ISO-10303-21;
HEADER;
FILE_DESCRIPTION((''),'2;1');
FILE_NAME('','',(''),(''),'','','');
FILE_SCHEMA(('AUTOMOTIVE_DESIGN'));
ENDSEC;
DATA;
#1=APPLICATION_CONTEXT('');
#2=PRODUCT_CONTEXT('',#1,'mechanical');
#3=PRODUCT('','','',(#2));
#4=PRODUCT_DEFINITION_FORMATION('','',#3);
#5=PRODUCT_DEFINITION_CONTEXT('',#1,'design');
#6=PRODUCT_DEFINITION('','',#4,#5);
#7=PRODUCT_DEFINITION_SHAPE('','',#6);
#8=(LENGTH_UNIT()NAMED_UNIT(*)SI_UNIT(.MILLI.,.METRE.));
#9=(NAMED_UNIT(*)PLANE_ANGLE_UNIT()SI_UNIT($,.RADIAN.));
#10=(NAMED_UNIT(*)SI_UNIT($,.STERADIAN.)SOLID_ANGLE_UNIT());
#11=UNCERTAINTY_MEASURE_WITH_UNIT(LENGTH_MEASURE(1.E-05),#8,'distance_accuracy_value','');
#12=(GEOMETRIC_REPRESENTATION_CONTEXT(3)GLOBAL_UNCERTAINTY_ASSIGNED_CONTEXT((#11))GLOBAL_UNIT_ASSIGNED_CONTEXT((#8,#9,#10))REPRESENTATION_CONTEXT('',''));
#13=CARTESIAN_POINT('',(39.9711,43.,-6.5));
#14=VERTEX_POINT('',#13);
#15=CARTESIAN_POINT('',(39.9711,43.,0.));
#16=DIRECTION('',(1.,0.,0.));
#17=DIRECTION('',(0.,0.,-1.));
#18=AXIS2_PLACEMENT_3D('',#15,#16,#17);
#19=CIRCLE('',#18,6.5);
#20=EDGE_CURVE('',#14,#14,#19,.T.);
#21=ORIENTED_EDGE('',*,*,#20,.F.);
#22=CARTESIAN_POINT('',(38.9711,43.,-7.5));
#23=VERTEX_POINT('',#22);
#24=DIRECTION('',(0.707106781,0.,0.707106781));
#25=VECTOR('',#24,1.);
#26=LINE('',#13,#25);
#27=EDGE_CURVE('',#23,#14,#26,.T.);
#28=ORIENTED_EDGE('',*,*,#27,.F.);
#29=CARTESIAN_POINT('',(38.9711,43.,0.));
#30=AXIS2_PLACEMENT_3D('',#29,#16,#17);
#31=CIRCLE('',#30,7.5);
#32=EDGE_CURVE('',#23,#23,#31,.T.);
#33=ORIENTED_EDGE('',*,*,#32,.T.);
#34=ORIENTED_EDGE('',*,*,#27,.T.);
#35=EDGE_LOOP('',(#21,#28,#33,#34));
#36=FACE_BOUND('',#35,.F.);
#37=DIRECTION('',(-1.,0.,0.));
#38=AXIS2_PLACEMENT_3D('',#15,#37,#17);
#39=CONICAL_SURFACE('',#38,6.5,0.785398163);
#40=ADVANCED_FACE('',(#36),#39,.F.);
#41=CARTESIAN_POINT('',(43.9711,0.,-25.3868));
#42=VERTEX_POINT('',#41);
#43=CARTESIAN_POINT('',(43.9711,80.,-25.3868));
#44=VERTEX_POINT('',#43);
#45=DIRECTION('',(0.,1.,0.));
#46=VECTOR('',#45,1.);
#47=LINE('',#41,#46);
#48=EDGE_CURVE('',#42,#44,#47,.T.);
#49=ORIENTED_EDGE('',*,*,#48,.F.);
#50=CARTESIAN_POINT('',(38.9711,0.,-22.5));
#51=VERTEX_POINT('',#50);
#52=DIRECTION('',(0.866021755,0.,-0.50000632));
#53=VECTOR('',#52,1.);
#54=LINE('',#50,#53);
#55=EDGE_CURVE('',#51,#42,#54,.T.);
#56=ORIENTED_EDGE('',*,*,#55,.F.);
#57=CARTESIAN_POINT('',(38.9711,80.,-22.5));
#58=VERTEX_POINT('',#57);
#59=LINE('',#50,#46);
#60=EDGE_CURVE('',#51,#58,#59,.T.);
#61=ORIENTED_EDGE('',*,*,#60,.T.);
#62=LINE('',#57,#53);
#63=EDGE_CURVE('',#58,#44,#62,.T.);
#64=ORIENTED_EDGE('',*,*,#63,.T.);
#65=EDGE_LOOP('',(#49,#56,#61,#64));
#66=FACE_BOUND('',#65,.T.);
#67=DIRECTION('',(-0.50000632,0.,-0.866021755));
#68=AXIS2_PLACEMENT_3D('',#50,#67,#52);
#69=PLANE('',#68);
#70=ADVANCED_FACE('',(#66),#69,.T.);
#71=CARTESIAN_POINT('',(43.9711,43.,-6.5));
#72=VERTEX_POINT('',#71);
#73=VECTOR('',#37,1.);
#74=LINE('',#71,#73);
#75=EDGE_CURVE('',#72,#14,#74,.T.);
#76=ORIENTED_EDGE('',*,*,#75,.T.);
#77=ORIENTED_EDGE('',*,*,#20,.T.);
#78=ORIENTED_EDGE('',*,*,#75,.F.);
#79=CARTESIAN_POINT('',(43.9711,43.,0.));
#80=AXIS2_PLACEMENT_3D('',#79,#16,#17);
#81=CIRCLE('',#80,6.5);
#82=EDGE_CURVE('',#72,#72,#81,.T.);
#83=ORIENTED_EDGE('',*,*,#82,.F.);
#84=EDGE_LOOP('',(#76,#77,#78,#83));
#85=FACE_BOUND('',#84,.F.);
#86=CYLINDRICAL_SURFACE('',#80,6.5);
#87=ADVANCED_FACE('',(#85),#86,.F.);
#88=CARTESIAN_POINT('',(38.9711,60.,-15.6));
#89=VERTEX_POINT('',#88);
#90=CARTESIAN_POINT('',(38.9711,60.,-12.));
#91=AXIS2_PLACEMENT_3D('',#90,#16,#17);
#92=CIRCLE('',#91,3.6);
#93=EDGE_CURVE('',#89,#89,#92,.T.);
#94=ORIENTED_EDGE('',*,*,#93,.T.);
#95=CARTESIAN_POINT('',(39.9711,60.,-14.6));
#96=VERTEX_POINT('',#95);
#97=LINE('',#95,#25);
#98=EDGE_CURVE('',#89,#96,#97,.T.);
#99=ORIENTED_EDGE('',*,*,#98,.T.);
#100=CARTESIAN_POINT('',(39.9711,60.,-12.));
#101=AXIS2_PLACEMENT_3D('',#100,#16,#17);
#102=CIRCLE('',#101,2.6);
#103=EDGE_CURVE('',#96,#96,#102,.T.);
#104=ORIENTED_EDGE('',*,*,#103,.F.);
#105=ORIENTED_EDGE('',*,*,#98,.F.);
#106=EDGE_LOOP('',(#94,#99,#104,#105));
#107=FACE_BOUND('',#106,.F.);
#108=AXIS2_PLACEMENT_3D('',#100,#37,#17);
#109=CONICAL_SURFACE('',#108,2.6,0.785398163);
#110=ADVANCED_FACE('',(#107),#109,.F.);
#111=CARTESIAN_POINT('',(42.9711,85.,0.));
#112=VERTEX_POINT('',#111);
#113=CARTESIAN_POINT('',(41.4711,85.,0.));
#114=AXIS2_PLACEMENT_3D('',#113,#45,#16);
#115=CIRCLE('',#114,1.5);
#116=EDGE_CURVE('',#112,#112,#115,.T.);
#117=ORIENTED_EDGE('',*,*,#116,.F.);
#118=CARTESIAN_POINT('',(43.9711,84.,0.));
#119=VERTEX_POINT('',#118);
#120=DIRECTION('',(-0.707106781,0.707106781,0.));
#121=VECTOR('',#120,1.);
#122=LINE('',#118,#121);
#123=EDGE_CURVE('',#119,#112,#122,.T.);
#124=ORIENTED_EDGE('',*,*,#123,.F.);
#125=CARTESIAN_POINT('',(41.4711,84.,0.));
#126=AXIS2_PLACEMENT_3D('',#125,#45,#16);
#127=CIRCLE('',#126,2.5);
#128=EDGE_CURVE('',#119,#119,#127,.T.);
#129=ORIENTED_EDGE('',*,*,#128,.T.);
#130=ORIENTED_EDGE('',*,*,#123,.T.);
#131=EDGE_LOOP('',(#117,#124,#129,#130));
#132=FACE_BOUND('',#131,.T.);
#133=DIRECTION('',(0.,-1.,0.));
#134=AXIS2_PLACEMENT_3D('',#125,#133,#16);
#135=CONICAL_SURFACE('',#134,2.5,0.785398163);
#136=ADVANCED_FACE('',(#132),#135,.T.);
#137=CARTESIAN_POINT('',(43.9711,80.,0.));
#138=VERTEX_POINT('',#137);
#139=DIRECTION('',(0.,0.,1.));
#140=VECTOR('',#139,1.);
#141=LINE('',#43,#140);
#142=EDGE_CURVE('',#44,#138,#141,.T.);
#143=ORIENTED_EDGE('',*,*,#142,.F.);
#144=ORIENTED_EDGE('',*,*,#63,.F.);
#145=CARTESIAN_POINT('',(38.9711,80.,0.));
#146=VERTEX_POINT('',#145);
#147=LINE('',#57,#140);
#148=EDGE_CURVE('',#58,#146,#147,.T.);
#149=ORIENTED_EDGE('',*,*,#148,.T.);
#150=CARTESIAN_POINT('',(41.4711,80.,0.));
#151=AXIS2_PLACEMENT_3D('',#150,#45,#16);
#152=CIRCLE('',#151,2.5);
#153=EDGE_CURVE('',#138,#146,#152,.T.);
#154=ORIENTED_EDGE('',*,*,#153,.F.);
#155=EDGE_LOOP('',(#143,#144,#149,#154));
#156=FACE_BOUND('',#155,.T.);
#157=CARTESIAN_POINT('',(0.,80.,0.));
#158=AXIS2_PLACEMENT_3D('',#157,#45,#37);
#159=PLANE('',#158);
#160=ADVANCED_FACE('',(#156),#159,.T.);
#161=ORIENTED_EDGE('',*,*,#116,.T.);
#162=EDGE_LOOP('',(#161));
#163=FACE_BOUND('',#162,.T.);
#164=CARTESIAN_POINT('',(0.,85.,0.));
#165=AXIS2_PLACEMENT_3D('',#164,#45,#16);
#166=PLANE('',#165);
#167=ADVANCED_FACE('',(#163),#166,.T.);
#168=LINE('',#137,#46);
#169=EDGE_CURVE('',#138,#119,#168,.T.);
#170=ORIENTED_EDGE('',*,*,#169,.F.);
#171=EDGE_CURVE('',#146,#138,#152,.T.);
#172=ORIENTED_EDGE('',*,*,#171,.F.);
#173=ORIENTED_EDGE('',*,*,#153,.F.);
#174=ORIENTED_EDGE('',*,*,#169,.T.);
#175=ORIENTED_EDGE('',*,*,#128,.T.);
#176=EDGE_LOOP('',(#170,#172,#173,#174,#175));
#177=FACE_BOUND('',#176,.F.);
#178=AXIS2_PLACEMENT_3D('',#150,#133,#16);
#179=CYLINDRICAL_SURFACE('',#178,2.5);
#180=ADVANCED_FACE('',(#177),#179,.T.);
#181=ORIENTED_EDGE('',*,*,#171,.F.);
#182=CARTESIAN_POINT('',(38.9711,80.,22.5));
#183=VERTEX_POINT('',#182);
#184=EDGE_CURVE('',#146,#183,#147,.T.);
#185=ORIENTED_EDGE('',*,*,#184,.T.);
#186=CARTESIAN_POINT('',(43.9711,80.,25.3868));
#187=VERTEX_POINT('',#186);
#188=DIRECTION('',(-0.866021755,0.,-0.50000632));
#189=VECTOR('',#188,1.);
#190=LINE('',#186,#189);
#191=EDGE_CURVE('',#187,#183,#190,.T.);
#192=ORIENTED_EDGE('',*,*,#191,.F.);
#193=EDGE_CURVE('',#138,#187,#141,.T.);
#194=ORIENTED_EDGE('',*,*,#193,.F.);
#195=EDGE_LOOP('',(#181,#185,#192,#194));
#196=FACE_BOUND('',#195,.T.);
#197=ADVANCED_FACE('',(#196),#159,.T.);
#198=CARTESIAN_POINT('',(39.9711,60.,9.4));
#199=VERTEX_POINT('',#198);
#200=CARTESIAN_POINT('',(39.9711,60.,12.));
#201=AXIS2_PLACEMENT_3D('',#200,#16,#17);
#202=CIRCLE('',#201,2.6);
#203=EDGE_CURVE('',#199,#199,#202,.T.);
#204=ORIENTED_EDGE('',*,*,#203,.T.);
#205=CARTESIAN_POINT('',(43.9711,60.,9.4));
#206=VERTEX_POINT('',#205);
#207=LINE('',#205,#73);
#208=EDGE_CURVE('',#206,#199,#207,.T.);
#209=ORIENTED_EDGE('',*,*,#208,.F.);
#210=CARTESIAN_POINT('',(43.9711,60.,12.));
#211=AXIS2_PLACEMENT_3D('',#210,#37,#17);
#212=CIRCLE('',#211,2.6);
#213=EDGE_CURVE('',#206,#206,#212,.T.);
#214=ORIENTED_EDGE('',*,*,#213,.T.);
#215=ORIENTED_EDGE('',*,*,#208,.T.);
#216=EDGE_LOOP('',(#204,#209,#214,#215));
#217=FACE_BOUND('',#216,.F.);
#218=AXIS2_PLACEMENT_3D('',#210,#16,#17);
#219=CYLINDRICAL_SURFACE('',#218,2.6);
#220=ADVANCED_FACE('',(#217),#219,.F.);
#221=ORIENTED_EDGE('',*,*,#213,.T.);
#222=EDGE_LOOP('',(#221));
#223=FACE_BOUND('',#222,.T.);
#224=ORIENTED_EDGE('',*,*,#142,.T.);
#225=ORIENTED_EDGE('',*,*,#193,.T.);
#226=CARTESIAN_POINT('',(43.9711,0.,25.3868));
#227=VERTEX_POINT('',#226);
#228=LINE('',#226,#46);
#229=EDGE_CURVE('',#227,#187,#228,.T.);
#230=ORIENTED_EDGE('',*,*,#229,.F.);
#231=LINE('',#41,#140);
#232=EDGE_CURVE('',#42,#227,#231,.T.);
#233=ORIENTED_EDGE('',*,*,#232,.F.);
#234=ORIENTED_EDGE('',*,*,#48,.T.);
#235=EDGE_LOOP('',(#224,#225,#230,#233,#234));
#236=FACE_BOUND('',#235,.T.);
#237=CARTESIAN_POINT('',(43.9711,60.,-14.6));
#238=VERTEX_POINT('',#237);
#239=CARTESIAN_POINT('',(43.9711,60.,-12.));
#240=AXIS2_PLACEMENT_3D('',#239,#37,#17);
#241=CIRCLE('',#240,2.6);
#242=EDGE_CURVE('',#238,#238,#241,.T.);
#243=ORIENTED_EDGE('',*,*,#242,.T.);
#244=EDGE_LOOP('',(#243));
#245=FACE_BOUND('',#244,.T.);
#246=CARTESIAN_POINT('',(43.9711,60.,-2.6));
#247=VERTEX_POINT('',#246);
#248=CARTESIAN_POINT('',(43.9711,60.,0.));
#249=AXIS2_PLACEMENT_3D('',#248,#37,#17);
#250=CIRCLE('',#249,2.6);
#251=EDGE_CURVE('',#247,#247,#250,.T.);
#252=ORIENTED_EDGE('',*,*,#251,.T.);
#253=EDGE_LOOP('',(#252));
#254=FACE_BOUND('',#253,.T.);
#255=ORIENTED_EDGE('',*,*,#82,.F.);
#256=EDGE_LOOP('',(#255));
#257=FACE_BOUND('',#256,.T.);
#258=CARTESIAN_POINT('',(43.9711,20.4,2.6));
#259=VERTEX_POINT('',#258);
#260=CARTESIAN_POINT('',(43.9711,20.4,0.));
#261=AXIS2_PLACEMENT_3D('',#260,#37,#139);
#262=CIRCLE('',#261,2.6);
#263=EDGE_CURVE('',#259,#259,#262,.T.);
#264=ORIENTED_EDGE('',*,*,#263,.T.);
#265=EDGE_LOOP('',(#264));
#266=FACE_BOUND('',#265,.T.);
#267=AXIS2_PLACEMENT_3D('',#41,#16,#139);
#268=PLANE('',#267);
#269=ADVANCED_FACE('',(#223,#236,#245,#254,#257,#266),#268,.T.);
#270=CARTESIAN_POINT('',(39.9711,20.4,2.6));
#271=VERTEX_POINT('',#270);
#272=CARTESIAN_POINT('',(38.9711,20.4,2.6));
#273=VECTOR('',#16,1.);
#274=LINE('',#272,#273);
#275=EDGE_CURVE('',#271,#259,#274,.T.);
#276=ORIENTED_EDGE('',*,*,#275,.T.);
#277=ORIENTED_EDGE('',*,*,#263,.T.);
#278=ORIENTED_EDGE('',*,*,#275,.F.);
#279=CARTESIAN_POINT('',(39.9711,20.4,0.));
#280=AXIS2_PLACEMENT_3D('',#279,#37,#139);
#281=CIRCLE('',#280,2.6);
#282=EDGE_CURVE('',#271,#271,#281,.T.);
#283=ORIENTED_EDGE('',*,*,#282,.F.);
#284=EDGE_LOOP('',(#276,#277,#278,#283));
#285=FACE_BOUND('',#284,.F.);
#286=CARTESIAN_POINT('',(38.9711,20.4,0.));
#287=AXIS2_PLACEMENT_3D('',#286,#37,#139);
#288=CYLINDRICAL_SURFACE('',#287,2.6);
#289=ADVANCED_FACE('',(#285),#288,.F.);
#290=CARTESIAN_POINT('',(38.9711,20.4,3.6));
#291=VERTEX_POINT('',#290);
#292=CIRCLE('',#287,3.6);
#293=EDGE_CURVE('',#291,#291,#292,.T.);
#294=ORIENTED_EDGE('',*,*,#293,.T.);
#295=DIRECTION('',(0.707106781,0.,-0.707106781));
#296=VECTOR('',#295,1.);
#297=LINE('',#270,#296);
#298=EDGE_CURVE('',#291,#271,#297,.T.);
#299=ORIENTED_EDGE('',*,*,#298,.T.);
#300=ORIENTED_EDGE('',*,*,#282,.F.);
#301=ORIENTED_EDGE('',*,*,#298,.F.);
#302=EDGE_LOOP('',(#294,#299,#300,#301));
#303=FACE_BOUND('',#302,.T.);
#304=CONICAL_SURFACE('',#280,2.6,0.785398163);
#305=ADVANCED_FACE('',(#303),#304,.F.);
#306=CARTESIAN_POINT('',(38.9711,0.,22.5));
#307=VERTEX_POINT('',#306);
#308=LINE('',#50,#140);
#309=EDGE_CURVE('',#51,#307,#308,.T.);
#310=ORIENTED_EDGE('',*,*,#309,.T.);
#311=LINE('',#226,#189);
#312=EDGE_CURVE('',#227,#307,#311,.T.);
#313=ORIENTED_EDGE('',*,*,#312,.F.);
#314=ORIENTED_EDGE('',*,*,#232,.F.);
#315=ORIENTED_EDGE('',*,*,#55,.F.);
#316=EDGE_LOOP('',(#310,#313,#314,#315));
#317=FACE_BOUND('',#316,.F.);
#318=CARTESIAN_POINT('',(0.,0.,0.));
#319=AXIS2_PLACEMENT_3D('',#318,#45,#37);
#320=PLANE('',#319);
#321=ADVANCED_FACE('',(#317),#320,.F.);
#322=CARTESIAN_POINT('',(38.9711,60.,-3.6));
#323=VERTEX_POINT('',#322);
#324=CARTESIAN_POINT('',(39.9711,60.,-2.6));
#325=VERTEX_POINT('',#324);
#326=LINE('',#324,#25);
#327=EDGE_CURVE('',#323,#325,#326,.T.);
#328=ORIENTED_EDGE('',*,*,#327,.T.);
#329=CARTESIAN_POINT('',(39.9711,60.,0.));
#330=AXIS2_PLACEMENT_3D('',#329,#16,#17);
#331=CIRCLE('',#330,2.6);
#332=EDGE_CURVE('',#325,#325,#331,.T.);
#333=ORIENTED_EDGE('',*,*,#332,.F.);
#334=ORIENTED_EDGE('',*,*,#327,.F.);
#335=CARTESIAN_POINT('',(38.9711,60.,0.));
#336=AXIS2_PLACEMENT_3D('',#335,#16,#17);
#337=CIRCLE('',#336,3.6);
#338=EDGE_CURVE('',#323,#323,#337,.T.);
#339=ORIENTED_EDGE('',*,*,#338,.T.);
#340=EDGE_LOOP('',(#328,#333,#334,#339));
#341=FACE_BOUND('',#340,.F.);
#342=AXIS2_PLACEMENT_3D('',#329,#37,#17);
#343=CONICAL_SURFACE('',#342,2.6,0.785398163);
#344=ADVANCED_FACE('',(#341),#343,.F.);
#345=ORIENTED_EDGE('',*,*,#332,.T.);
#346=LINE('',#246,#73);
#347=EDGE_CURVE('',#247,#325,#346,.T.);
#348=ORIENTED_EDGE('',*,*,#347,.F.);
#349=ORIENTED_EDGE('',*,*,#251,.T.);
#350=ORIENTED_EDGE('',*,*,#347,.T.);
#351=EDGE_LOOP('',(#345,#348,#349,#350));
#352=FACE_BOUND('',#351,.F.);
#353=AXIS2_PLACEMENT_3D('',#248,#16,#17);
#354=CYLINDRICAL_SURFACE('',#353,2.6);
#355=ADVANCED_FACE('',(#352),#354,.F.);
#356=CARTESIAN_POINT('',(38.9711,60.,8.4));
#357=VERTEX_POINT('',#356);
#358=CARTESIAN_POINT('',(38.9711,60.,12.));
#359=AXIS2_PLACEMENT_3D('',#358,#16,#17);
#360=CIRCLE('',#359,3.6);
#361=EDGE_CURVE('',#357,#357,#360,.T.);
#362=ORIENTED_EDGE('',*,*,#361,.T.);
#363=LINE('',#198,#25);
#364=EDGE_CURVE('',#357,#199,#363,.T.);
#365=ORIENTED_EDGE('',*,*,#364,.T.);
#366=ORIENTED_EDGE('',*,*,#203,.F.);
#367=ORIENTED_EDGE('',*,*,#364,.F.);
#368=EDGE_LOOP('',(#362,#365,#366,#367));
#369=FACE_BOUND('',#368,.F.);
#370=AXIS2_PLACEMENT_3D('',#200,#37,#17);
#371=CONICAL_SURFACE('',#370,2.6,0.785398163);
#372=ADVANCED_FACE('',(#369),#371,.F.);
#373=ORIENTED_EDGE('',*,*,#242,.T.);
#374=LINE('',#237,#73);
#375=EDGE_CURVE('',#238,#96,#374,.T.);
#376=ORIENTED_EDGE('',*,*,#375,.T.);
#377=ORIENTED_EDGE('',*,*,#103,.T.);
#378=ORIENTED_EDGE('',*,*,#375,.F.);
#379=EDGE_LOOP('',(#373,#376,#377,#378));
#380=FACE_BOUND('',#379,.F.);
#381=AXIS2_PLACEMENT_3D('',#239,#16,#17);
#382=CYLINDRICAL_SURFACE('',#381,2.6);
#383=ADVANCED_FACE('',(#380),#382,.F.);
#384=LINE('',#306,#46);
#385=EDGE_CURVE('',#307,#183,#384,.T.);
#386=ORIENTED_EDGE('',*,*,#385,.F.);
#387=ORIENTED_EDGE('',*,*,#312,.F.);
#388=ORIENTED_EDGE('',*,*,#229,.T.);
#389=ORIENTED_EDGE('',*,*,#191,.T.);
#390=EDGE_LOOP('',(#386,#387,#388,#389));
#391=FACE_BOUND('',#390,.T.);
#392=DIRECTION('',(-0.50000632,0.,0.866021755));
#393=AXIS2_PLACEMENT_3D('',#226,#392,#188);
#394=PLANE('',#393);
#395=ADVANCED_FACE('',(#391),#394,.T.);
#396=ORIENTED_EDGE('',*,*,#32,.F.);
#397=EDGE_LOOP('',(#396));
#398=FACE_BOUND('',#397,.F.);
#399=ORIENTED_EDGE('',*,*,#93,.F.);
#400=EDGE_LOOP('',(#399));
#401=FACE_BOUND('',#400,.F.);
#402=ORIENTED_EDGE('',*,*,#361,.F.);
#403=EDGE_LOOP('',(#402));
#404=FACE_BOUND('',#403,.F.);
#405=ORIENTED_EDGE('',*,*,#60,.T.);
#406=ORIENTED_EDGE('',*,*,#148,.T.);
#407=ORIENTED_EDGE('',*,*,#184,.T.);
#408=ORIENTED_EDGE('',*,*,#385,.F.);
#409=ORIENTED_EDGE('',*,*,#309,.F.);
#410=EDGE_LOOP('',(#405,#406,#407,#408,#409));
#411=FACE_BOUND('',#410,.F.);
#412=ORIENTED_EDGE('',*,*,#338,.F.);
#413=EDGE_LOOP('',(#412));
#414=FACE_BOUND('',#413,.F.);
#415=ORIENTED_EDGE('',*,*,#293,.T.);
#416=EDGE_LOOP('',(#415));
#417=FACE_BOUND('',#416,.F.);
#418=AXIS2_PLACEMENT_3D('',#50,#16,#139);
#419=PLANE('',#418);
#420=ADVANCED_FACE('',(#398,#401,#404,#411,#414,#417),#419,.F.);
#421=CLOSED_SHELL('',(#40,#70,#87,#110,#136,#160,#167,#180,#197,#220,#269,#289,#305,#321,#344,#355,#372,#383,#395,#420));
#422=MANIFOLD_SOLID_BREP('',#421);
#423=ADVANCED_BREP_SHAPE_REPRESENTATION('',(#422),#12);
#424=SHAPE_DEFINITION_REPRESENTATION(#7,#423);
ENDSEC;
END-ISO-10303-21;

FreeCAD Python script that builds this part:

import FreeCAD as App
import Part
import Sketcher
from FreeCAD import Vector
Q = App.Units.Quantity


def edges_at(feature, points):
    """Names of the edges that pass closest to the given points."""
    edges = feature.Shape.Edges
    near = lambda p: min(range(len(edges)), key=lambda i: edges[i].distToShape(Part.Vertex(*p))[0])
    return sorted({f"Edge{near(p) + 1}" for p in points})


def add_polygon(sketch, points):
    """Adds a closed chain of lines whose ends are joined by coincident constraints."""
    first, n = sketch.GeometryCount, len(points)
    for a, b in zip(points, points[1:] + points[:1]):
        sketch.addGeometry(Part.LineSegment(App.Vector(*a, 0), App.Vector(*b, 0)), False)
    for i in range(n):
        sketch.addConstraint(Sketcher.Constraint("Coincident", first + i, 2, first + (i + 1) % n, 1))

doc = App.newDocument("Part")
body = doc.addObject("PartDesign::Body", "Body")

# Sketch on XZ plane
sketch1 = body.newObject("Sketcher::SketchObject", "Sketch")
sketch1.AttachmentSupport = (doc.getObject("XZ_Plane"), [""])
sketch1.MapMode = "FlatFace"
add_polygon(sketch1, [(39, -22), (39, 22), (44, 25), (44, -25)])  # lines 0-3
sketch1.addConstraint(Sketcher.Constraint("Vertical", 0))
sketch1.addConstraint(Sketcher.Constraint("Vertical", 2))
sketch1.addConstraint(Sketcher.Constraint("Equal", 1, 3))
sketch1.addConstraint(Sketcher.Constraint("DistanceY", 0, 1, 0, 2, 45.0))
sketch1.addConstraint(Sketcher.Constraint("DistanceX", 0, 2, 1, 2, 5.0))
sketch1.addConstraint(Sketcher.Constraint("Angle", 1, Q("30.0004 deg")))
sketch1.addConstraint(Sketcher.Constraint("DistanceY", -1, 1, 0, 2, 22.5))
sketch1.addConstraint(Sketcher.Constraint("DistanceX", -1, 1, 0, 2, 38.971))
pad1 = body.newObject("PartDesign::Pad", "Pad")
pad1.Profile = sketch1
pad1.Length = 80
pad1.Reversed = True

# Sketch on YZ plane
sketch2 = body.newObject("Sketcher::SketchObject", "Sketch001")
sketch2.AttachmentSupport = (doc.getObject("YZ_Plane"), [""])
sketch2.MapMode = "FlatFace"
sketch2.AttachmentOffset = App.Placement(Vector(0, 0, 38.9711), App.Rotation())
sketch2.addGeometry(Part.Circle(Vector(20.4, 0, 0), Vector(0, 0, 1), 2.6), False)
sketch2.addConstraint(Sketcher.Constraint("PointOnObject", 0, 3, -1))
sketch2.addConstraint(Sketcher.Constraint("Diameter", 0, 5.2))
sketch2.addConstraint(Sketcher.Constraint("DistanceX", -1, 1, 0, 3, 20.4))
pocket1 = body.newObject("PartDesign::Pocket", "Pocket")
pocket1.Profile = sketch2
pocket1.Type = "ThroughAll"
pocket1.Reversed = True

# Sketch on XZ plane
sketch3 = body.newObject("Sketcher::SketchObject", "Sketch002")
sketch3.AttachmentSupport = (doc.getObject("XZ_Plane"), [""])
sketch3.MapMode = "FlatFace"
sketch3.AttachmentOffset = App.Placement(Vector(0, 0, -80), App.Rotation())
sketch3.addGeometry(Part.Circle(Vector(41.5, 0, 0), Vector(0, 0, 1), 2.5), False)
sketch3.addConstraint(Sketcher.Constraint("PointOnObject", 0, 3, -1))
sketch3.addConstraint(Sketcher.Constraint("Diameter", 0, 5.0))
sketch3.addConstraint(Sketcher.Constraint("DistanceX", -1, 1, 0, 3, 41.471))
pad2 = body.newObject("PartDesign::Pad", "Pad001")
pad2.Profile = sketch3
pad2.Length = 5
pad2.Reversed = True

# Sketch on YZ plane
sketch4 = body.newObject("Sketcher::SketchObject", "Sketch003")
sketch4.AttachmentSupport = (doc.getObject("YZ_Plane"), [""])
sketch4.MapMode = "FlatFace"
sketch4.AttachmentOffset = App.Placement(Vector(0, 0, 43.9711), App.Rotation())
sketch4.addGeometry(Part.Circle(Vector(60, 0, 0), Vector(0, 0, 1), 2.6), False)
sketch4.addGeometry(Part.Circle(Vector(60, 12, 0), Vector(0, 0, 1), 2.6), False)
sketch4.addGeometry(Part.Circle(Vector(60, -12, 0), Vector(0, 0, 1), 2.6), False)
sketch4.addConstraint(Sketcher.Constraint("Equal", 0, 1))
sketch4.addConstraint(Sketcher.Constraint("Equal", 1, 2))
sketch4.addConstraint(Sketcher.Constraint("Symmetric", 1, 3, 2, 3, -1))
sketch4.addConstraint(Sketcher.Constraint("PointOnObject", 0, 3, -1))
sketch4.addConstraint(Sketcher.Constraint("Vertical", 0, 3, 1, 3))
sketch4.addConstraint(Sketcher.Constraint("Diameter", 0, 5.2))
sketch4.addConstraint(Sketcher.Constraint("DistanceY", -1, 1, 1, 3, 12.0))
sketch4.addConstraint(Sketcher.Constraint("DistanceX", -1, 1, 0, 3, 60.0))
pocket2 = body.newObject("PartDesign::Pocket", "Pocket001")
pocket2.Profile = sketch4
pocket2.Type = "ThroughAll"

# Sketch on YZ plane
sketch5 = body.newObject("Sketcher::SketchObject", "Sketch004")
sketch5.AttachmentSupport = (doc.getObject("YZ_Plane"), [""])
sketch5.MapMode = "FlatFace"
sketch5.AttachmentOffset = App.Placement(Vector(0, 0, 43.9711), App.Rotation())
sketch5.addGeometry(Part.Circle(Vector(43, 0, 0), Vector(0, 0, 1), 6), False)
sketch5.addConstraint(Sketcher.Constraint("PointOnObject", 0, 3, -1))
sketch5.addConstraint(Sketcher.Constraint("Diameter", 0, 13.0))
sketch5.addConstraint(Sketcher.Constraint("DistanceX", -1, 1, 0, 3, 43.0))
pocket3 = body.newObject("PartDesign::Pocket", "Pocket002")
pocket3.Profile = sketch5
pocket3.Type = "ThroughAll"
doc.recompute()

chamfer = body.newObject("PartDesign::Chamfer", "Chamfer")
chamfer.Base = (pocket3, edges_at(pocket3, [
    (38.971, 85, 0),
    (38.971, 60, -9.4),
    (38.971, 60, 2.6),
    (38.971, 60, 14.6),
    (38.971, 43, 6.5),
    (38.971, 20.4, -2.6),
]))
chamfer.Size = 1

doc.recompute()
